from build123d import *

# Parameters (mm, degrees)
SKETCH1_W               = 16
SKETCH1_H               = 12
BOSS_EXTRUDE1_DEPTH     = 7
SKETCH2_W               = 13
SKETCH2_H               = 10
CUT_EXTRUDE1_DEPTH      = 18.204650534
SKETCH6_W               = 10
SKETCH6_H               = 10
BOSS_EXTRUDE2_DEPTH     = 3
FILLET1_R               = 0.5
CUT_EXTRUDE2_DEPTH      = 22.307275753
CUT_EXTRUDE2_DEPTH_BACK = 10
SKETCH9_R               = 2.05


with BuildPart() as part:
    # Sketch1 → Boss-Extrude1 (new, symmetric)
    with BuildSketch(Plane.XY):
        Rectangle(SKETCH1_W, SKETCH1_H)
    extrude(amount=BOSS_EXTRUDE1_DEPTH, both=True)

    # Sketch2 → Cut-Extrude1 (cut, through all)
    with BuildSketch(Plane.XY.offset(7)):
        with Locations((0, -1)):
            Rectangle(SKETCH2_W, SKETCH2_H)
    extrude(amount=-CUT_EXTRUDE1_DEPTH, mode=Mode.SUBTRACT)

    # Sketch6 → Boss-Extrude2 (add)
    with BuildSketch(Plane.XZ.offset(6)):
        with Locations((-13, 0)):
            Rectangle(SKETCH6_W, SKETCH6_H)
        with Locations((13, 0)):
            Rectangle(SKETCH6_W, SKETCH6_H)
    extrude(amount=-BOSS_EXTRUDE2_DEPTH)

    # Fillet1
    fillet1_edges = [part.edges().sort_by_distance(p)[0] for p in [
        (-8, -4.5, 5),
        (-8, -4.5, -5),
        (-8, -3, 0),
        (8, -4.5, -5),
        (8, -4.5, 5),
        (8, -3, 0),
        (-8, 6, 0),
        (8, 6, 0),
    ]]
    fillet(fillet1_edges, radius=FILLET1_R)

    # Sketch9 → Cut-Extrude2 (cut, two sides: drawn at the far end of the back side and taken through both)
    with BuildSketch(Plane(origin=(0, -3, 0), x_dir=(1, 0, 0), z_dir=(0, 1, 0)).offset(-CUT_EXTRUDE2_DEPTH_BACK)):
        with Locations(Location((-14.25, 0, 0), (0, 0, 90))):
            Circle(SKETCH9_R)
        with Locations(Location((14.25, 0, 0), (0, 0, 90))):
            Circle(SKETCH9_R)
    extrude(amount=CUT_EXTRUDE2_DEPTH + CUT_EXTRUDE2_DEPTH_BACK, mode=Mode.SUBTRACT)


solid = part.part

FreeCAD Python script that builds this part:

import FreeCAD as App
import Part
import Sketcher
from FreeCAD import Vector
Q = App.Units.Quantity


def edges_at(feature, points):
    """Names of the edges that pass closest to the given points."""
    edges = feature.Shape.Edges
    near = lambda p: min(range(len(edges)), key=lambda i: edges[i].distToShape(Part.Vertex(*p))[0])
    return sorted({f"Edge{near(p) + 1}" for p in points})

doc = App.newDocument("Part")
body = doc.addObject("PartDesign::Body", "Body")

# Sketch on XY plane
sketch1 = body.newObject("Sketcher::SketchObject", "Sketch")
sketch1.AttachmentSupport = (doc.getObject("XY_Plane"), [""])
sketch1.MapMode = "FlatFace"
sketch1.addGeometry([
    Part.LineSegment(Vector(-8, 6, 0), Vector(-8, -6, 0)),
    Part.LineSegment(Vector(-8, -6, 0), Vector(8, -6, 0)),
    Part.LineSegment(Vector(8, -6, 0), Vector(8, 6, 0)),
    Part.LineSegment(Vector(8, 6, 0), Vector(-8, 6, 0)),
], False)
sketch1.addConstraint([
    Sketcher.Constraint("Coincident", 0, 2, 1, 1),
    Sketcher.Constraint("Coincident", 1, 2, 2, 1),
    Sketcher.Constraint("Coincident", 2, 2, 3, 1),
    Sketcher.Constraint("Coincident", 3, 2, 0, 1),
    Sketcher.Constraint("Vertical", 0),
    Sketcher.Constraint("Horizontal", 1),
    Sketcher.Constraint("Vertical", 2),
    Sketcher.Constraint("Horizontal", 3),
    Sketcher.Constraint("Symmetric", 0, 2, 2, 2, -1, 1),
    Sketcher.Constraint("DistanceX", 1, 1, 1, 2, Q("16 mm")),
    Sketcher.Constraint("DistanceY", 0, 2, 0, 1, Q("12 mm")),
])
pad1 = body.newObject("PartDesign::Pad", "Pad")
pad1.Profile = sketch1
pad1.Length = 14
pad1.Midplane = True

# Sketch on XY plane
sketch2 = body.newObject("Sketcher::SketchObject", "Sketch001")
sketch2.AttachmentSupport = (doc.getObject("XY_Plane"), [""])
sketch2.MapMode = "FlatFace"
sketch2.AttachmentOffset = App.Placement(Vector(0, 0, 7), App.Rotation())
sketch2.addGeometry([
    Part.LineSegment(Vector(-6, 4, 0), Vector(-6, -6, 0)),
    Part.LineSegment(Vector(-6, -6, 0), Vector(6, -6, 0)),
    Part.LineSegment(Vector(6, -6, 0), Vector(6, 4, 0)),
    Part.LineSegment(Vector(6, 4, 0), Vector(-6, 4, 0)),
], False)
sketch2.addConstraint([
    Sketcher.Constraint("Coincident", 0, 2, 1, 1),
    Sketcher.Constraint("Coincident", 1, 2, 2, 1),
    Sketcher.Constraint("Coincident", 2, 2, 3, 1),
    Sketcher.Constraint("Coincident", 3, 2, 0, 1),
    Sketcher.Constraint("Vertical", 0),
    Sketcher.Constraint("Horizontal", 1),
    Sketcher.Constraint("Vertical", 2),
    Sketcher.Constraint("Horizontal", 3),
    Sketcher.Constraint("DistanceX", 1, 1, 1, 2, Q("13 mm")),
    Sketcher.Constraint("DistanceY", 0, 2, 0, 1, Q("10 mm")),
    Sketcher.Constraint("DistanceY", 0, 2, -1, 1, Q("6 mm")),
    Sketcher.Constraint("DistanceX", 0, 2, -1, 1, Q("6.5 mm")),
])
pocket1 = body.newObject("PartDesign::Pocket", "Pocket")
pocket1.Profile = sketch2
pocket1.Type = "ThroughAll"

# Sketch on XZ plane
sketch3 = body.newObject("Sketcher::SketchObject", "Sketch002")
sketch3.AttachmentSupport = (doc.getObject("XZ_Plane"), [""])
sketch3.MapMode = "FlatFace"
sketch3.AttachmentOffset = App.Placement(Vector(0, 0, 6), App.Rotation())
sketch3.addGeometry([
    Part.LineSegment(Vector(-18, 5, 0), Vector(-18, -5, 0)),  # 0
    Part.LineSegment(Vector(-18, -5, 0), Vector(-8, -5, 0)),  # 1
    Part.LineSegment(Vector(-8, -5, 0), Vector(-8, 5, 0)),  # 2
    Part.LineSegment(Vector(-8, 5, 0), Vector(-18, 5, 0)),  # 3
    Part.LineSegment(Vector(8, 5, 0), Vector(8, -5, 0)),  # 4
    Part.LineSegment(Vector(8, -5, 0), Vector(18, -5, 0)),  # 5
    Part.LineSegment(Vector(18, -5, 0), Vector(18, 5, 0)),  # 6
    Part.LineSegment(Vector(18, 5, 0), Vector(8, 5, 0)),  # 7
], False)
sketch3.addConstraint([
    Sketcher.Constraint("Coincident", 0, 2, 1, 1),
    Sketcher.Constraint("Coincident", 1, 2, 2, 1),
    Sketcher.Constraint("Coincident", 2, 2, 3, 1),
    Sketcher.Constraint("Coincident", 3, 2, 0, 1),
    Sketcher.Constraint("Coincident", 4, 2, 5, 1),
    Sketcher.Constraint("Coincident", 5, 2, 6, 1),
    Sketcher.Constraint("Coincident", 6, 2, 7, 1),
    Sketcher.Constraint("Coincident", 7, 2, 4, 1),
    Sketcher.Constraint("Vertical", 0),
    Sketcher.Constraint("Horizontal", 1),
    Sketcher.Constraint("Vertical", 2),
    Sketcher.Constraint("Horizontal", 3),
    Sketcher.Constraint("Vertical", 4),
    Sketcher.Constraint("Horizontal", 5),
    Sketcher.Constraint("Vertical", 6),
    Sketcher.Constraint("Horizontal", 7),
    Sketcher.Constraint("Symmetric", 2, 2, 4, 2, -1, 1),
    Sketcher.Constraint("Symmetric", 0, 2, 6, 2, -1, 1),
    Sketcher.Constraint("Horizontal", 1, 2, 4, 2),
    Sketcher.Constraint("Equal", 7, 0),
    Sketcher.Constraint("DistanceX", 1, 1, 1, 2, Q("10 mm")),
    Sketcher.Constraint("DistanceX", 0, 2, -1, 1, Q("18 mm")),
])
pad2 = body.newObject("PartDesign::Pad", "Pad001")
pad2.Profile = sketch3
pad2.Length = 3
pad2.Reversed = True
doc.recompute()

fillet = body.newObject("PartDesign::Fillet", "Fillet")
fillet.Base = (pad2, edges_at(pad2, [
    (-8, -4.5, 5),
    (-8, -4.5, -5),
    (-8, -3, 0),
    (8, -4.5, -5),
    (8, -4.5, 5),
    (8, -3, 0),
    (-8, 6, 0),
    (8, 6, 0),
]))
fillet.Radius = 0.5

# Sketch on XZ plane
sketch4 = body.newObject("Sketcher::SketchObject", "Sketch003")
sketch4.AttachmentSupport = (doc.getObject("XZ_Plane"), [""])
sketch4.MapMode = "FlatFace"
sketch4.AttachmentOffset = App.Placement(Vector(0, 0, 3), App.Rotation())
sketch4.addGeometry([
    Part.Circle(Vector(-14.2, 0, 0), Vector(0, 0, 1), 2),
    Part.Circle(Vector(14.2, 0, 0), Vector(0, 0, 1), 2),
], False)
sketch4.addConstraint([
    Sketcher.Constraint("Equal", 0, 1),
    Sketcher.Constraint("Symmetric", 0, 3, 1, 3, -1, 1),
    Sketcher.Constraint("PointOnObject", 0, 3, -1),
    Sketcher.Constraint("Diameter", 0, Q("4.1 mm")),
    Sketcher.Constraint("DistanceX", 0, 3, 1, 3, Q("28.5 mm")),
])
pocket2 = body.newObject("PartDesign::Pocket", "Pocket001")
pocket2.Profile = sketch4
pocket2.Type = "ThroughAll"
pocket2.Midplane = True

doc.recompute()
